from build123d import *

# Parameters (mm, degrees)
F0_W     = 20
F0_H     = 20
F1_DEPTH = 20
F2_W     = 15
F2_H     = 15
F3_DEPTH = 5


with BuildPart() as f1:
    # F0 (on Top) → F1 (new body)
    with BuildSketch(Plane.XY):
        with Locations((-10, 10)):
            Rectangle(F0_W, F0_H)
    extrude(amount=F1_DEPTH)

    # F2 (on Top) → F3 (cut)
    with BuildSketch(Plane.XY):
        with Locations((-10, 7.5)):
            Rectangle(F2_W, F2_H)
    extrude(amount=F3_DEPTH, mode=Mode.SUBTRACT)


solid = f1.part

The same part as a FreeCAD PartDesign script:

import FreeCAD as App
import Part
import Sketcher
from FreeCAD import Vector

doc = App.newDocument("Part")
body = doc.addObject("PartDesign::Body", "Body")

# Sketch on XY plane
sketch1 = body.newObject("Sketcher::SketchObject", "Sketch")
sketch1.AttachmentSupport = (doc.getObject("XY_Plane"), [""])
sketch1.MapMode = "FlatFace"
sketch1.addGeometry(Part.LineSegment(Vector(-20, 20, 0), Vector(-20, 0, 0)), False)
sketch1.addGeometry(Part.LineSegment(Vector(-20, 0, 0), Vector(0, 0, 0)), False)
sketch1.addGeometry(Part.LineSegment(Vector(0, 0, 0), Vector(0, 20, 0)), False)
sketch1.addGeometry(Part.LineSegment(Vector(0, 20, 0), Vector(-20, 20, 0)), False)
sketch1.addConstraint(Sketcher.Constraint("Coincident", 0, 2, 1, 1))
sketch1.addConstraint(Sketcher.Constraint("Coincident", 1, 2, 2, 1))
sketch1.addConstraint(Sketcher.Constraint("Coincident", 2, 2, 3, 1))
sketch1.addConstraint(Sketcher.Constraint("Coincident", 3, 2, 0, 1))
sketch1.addConstraint(Sketcher.Constraint("Vertical", 0))
sketch1.addConstraint(Sketcher.Constraint("Horizontal", 1))
sketch1.addConstraint(Sketcher.Constraint("Vertical", 2))
sketch1.addConstraint(Sketcher.Constraint("Horizontal", 3))
sketch1.addConstraint(Sketcher.Constraint("Coincident", 1, 2, -1, 1))
sketch1.addConstraint(Sketcher.Constraint("Equal", 3, 0))
sketch1.addConstraint(Sketcher.Constraint("DistanceX", 1, 1, 1, 2, 20.0))
pad1 = body.newObject("PartDesign::Pad", "Pad")
pad1.Profile = sketch1
pad1.Length = 20

# Sketch on XY plane
sketch2 = body.newObject("Sketcher::SketchObject", "Sketch001")
sketch2.AttachmentSupport = (doc.getObject("XY_Plane"), [""])
sketch2.MapMode = "FlatFace"
sketch2.addGeometry(Part.LineSegment(Vector(-18, 15, 0), Vector(-18, 0, 0)), False)
sketch2.addGeometry(Part.LineSegment(Vector(-18, 0, 0), Vector(-2, 0, 0)), False)
sketch2.addGeometry(Part.LineSegment(Vector(-2, 0, 0), Vector(-2, 15, 0)), False)
sketch2.addGeometry(Part.LineSegment(Vector(-2, 15, 0), Vector(-18, 15, 0)), False)
sketch2.addConstraint(Sketcher.Constraint("Coincident", 0, 2, 1, 1))
sketch2.addConstraint(Sketcher.Constraint("Coincident", 1, 2, 2, 1))
sketch2.addConstraint(Sketcher.Constraint("Coincident", 2, 2, 3, 1))
sketch2.addConstraint(Sketcher.Constraint("Coincident", 3, 2, 0, 1))
sketch2.addConstraint(Sketcher.Constraint("Vertical", 0))
sketch2.addConstraint(Sketcher.Constraint("Horizontal", 1))
sketch2.addConstraint(Sketcher.Constraint("Vertical", 2))
sketch2.addConstraint(Sketcher.Constraint("Horizontal", 3))
sketch2.addConstraint(Sketcher.Constraint("PointOnObject", 0, 2, -1))
sketch2.addConstraint(Sketcher.Constraint("Equal", 3, 0))
sketch2.addConstraint(Sketcher.Constraint("DistanceX", 1, 1, 1, 2, 15.0))
sketch2.addConstraint(Sketcher.Constraint("DistanceX", 0, 2, -1, 1, 17.5))
pocket1 = body.newObject("PartDesign::Pocket", "Pocket")
pocket1.Profile = sketch2
pocket1.Length = 5
pocket1.Reversed = True

doc.recompute()
